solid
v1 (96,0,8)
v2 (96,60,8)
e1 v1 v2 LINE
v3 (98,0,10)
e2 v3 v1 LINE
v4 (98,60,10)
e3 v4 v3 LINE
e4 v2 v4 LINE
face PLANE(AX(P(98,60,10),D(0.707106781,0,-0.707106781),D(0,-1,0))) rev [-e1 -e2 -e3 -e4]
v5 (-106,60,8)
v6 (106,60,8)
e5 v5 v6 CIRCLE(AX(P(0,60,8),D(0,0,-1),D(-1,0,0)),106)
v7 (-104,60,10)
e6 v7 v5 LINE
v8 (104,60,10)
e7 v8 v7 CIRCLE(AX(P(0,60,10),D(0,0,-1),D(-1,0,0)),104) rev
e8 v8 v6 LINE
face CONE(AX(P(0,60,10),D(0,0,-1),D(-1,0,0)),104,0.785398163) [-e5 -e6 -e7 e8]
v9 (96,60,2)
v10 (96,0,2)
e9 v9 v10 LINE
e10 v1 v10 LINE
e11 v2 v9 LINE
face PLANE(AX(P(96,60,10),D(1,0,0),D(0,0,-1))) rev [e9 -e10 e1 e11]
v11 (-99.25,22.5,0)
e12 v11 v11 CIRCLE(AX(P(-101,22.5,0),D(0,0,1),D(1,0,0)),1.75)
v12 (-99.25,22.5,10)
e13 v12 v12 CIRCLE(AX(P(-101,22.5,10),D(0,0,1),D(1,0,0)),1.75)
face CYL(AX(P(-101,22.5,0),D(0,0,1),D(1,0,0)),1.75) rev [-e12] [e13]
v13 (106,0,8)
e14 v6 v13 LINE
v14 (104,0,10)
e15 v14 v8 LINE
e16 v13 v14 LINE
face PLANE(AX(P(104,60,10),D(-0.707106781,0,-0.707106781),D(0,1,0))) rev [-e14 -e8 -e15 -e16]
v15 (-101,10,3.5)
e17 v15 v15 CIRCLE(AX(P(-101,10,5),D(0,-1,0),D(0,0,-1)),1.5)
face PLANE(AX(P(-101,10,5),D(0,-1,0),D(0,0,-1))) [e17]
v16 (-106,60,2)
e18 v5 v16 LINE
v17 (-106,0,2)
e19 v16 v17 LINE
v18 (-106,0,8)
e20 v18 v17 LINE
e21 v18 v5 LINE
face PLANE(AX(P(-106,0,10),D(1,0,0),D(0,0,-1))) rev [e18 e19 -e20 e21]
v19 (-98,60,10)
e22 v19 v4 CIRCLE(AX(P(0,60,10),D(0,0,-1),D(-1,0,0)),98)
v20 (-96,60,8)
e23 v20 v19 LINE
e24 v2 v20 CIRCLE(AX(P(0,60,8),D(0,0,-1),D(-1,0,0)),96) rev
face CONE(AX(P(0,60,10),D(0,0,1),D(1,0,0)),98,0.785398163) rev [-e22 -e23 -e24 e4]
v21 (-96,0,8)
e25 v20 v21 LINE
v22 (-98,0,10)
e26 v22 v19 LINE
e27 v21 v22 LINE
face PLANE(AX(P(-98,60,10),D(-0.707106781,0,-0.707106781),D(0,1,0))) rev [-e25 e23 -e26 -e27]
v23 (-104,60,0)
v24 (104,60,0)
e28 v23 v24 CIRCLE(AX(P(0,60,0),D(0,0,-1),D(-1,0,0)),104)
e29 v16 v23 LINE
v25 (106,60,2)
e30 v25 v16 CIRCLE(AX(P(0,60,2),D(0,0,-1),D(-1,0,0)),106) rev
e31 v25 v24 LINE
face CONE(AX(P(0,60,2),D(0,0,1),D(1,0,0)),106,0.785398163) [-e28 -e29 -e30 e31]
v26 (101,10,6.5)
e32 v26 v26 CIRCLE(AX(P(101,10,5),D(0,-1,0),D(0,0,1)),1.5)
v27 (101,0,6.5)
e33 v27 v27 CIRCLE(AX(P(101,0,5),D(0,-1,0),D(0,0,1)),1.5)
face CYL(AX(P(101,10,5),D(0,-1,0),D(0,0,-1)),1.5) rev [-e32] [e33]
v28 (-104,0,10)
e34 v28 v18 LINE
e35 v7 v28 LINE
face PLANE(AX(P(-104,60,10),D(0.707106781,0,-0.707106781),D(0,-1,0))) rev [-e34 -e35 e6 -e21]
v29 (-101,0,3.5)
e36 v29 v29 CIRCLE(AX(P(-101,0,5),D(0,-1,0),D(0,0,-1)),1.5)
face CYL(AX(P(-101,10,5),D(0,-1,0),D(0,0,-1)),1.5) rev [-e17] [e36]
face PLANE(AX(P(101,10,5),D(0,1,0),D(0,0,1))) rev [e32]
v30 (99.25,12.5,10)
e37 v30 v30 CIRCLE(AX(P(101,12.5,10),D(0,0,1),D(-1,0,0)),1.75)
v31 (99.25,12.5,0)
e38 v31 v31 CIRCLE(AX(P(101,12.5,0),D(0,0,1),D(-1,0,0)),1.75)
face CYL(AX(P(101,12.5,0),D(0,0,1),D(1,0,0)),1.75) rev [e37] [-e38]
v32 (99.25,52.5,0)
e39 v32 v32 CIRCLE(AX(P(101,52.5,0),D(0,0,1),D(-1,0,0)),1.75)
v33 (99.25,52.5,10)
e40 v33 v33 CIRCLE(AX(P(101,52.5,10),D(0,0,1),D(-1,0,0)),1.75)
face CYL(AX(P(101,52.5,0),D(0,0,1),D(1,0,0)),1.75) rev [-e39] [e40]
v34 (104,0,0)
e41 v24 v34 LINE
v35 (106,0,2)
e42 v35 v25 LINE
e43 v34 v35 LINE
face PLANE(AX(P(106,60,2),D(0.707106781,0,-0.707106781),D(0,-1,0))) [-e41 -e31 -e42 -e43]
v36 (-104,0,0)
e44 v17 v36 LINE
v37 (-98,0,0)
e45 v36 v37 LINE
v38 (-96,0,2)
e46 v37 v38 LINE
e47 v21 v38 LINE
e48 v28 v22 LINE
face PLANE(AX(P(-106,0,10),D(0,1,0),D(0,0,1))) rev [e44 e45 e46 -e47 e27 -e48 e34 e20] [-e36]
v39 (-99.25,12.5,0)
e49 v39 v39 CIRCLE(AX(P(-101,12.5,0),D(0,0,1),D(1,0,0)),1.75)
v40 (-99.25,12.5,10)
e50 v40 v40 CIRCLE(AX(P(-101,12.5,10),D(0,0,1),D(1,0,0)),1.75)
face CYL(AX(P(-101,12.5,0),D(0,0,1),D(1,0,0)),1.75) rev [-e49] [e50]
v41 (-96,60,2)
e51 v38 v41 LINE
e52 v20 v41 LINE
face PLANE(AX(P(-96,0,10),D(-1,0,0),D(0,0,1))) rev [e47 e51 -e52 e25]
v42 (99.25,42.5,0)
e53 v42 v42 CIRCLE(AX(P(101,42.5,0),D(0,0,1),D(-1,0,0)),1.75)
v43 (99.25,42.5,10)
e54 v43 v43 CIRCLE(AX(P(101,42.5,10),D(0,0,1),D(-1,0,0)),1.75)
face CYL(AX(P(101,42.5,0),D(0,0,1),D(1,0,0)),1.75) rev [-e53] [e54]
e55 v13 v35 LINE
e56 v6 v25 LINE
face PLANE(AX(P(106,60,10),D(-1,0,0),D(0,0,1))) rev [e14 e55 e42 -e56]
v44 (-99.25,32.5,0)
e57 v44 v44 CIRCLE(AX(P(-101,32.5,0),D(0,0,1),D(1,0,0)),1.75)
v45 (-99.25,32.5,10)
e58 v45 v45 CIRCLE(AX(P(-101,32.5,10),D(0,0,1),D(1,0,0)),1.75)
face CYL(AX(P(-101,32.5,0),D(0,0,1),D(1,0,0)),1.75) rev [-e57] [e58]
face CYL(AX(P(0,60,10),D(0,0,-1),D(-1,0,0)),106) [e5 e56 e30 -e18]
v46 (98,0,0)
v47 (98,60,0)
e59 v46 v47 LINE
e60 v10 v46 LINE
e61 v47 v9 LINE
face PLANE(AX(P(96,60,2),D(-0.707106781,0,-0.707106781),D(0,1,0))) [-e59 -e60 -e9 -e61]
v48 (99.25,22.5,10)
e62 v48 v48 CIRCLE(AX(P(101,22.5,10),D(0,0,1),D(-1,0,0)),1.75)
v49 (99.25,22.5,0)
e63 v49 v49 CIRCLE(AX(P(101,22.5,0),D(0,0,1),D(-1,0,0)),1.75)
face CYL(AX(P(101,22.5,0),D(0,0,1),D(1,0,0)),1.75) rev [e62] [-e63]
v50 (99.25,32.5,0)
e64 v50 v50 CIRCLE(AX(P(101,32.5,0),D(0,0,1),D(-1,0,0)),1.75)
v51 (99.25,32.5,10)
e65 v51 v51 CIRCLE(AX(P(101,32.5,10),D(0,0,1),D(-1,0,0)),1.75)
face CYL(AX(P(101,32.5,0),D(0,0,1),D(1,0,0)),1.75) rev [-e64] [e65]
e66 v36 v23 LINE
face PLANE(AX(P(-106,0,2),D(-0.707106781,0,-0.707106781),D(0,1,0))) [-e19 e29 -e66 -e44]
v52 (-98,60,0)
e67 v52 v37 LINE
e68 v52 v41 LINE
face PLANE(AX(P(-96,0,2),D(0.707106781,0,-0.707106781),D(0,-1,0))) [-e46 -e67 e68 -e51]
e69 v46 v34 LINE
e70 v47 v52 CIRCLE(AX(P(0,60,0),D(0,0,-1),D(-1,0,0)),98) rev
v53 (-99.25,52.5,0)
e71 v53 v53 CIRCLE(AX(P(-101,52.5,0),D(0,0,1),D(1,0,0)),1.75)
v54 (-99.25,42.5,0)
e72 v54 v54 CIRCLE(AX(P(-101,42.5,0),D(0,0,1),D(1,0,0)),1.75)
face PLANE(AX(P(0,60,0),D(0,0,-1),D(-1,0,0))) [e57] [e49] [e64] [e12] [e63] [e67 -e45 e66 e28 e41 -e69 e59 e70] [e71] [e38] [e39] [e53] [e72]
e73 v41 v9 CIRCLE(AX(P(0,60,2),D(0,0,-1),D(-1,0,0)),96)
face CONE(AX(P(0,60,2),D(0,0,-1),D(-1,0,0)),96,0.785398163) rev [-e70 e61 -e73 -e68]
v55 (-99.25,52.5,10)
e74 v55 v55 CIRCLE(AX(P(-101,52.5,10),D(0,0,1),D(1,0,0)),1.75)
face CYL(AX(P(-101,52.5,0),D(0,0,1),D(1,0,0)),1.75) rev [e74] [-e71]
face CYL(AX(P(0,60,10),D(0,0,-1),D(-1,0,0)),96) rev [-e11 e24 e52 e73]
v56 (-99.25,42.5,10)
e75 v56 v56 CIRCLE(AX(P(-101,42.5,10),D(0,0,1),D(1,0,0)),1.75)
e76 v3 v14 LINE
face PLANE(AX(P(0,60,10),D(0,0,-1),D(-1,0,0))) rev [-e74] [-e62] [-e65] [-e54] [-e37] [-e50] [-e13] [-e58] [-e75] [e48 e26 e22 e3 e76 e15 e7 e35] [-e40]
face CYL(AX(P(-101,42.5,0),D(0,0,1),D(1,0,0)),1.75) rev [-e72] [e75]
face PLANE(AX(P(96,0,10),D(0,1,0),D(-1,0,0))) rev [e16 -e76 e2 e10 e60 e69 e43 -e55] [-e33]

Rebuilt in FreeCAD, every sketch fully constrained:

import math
import FreeCAD as App
import Part
import Sketcher

V = App.Vector


def edges_at(feature, points):
    """Names of the edges that pass closest to the given points."""
    edges = feature.Shape.Edges
    near = lambda p: min(range(len(edges)), key=lambda i: edges[i].distToShape(Part.Vertex(*p))[0])
    return sorted({f"Edge{near(p) + 1}" for p in points})

doc = App.newDocument("Part")
body = doc.addObject("PartDesign::Body", "Body")

# Sketch on XY plane
sketch1 = body.newObject("Sketcher::SketchObject", "Sketch")
sketch1.AttachmentSupport = (doc.getObject("XY_Plane"), [""])
sketch1.MapMode = "FlatFace"
sketch1.addGeometry(Part.LineSegment(V(-106, 60, 0), V(-106, 0, 0)), False)
sketch1.addGeometry(Part.LineSegment(V(-106, 0, 0), V(-96, 0, 0)), False)
sketch1.addGeometry(Part.LineSegment(V(-96, 0, 0), V(-96, 60, 0)), False)
sketch1.addGeometry(Part.ArcOfCircle(Part.Circle(V(0, 60, 0), V(0, 0, 1), 96), math.radians(0), math.radians(180)), False)
sketch1.addGeometry(Part.LineSegment(V(96, 60, 0), V(96, 0, 0)), False)
sketch1.addGeometry(Part.LineSegment(V(96, 0, 0), V(106, 0, 0)), False)
sketch1.addGeometry(Part.LineSegment(V(106, 0, 0), V(106, 60, 0)), False)
sketch1.addGeometry(Part.ArcOfCircle(Part.Circle(V(0, 60, 0), V(0, 0, 1), 106), math.radians(0), math.radians(180)), False)
sketch1.addConstraint(Sketcher.Constraint("Coincident", 0, 2, 1, 1))
sketch1.addConstraint(Sketcher.Constraint("Coincident", 1, 2, 2, 1))
sketch1.addConstraint(Sketcher.Constraint("Tangent", 2, 2, 3, 2))
sketch1.addConstraint(Sketcher.Constraint("Tangent", 3, 1, 4, 1))
sketch1.addConstraint(Sketcher.Constraint("Coincident", 4, 2, 5, 1))
sketch1.addConstraint(Sketcher.Constraint("Coincident", 5, 2, 6, 1))
sketch1.addConstraint(Sketcher.Constraint("Tangent", 6, 2, 7, 1))
sketch1.addConstraint(Sketcher.Constraint("Tangent", 7, 2, 0, 1))
sketch1.addConstraint(Sketcher.Constraint("Vertical", 0))
sketch1.addConstraint(Sketcher.Constraint("Horizontal", 1))
sketch1.addConstraint(Sketcher.Constraint("Vertical", 2))
sketch1.addConstraint(Sketcher.Constraint("Vertical", 4))
sketch1.addConstraint(Sketcher.Constraint("Horizontal", 5))
sketch1.addConstraint(Sketcher.Constraint("Vertical", 6))
sketch1.addConstraint(Sketcher.Constraint("Coincident", 7, 3, 3, 3))
sketch1.addConstraint(Sketcher.Constraint("Symmetric", 1, 2, 4, 2, -1, 1))
sketch1.addConstraint(Sketcher.Constraint("PointOnObject", 0, 2, -1))
sketch1.addConstraint(Sketcher.Constraint("Radius", 3, 96.0))
sketch1.addConstraint(Sketcher.Constraint("Radius", 7, 106.0))
sketch1.addConstraint(Sketcher.Constraint("DistanceY", 0, 2, 0, 1, 60.0))
pad1 = body.newObject("PartDesign::Pad", "Pad")
pad1.Profile = sketch1
pad1.Length = 10
doc.recompute()

chamfer = body.newObject("PartDesign::Chamfer", "Chamfer")
chamfer.Base = (pad1, edges_at(pad1, [
    (96, 30, 0),
    (0, 156, 0),
    (-96, 30, 0),
    (0, 156, 10),
    (96, 30, 10),
    (106, 30, 10),
    (0, 166, 10),
    (-106, 30, 10),
    (-106, 30, 0),
    (-96, 30, 10),
    (0, 166, 0),
    (106, 30, 0),
]))
chamfer.Size = 2

# Sketch on XY plane
sketch2 = body.newObject("Sketcher::SketchObject", "Sketch001")
sketch2.AttachmentSupport = (doc.getObject("XY_Plane"), [""])
sketch2.MapMode = "FlatFace"
sketch2.AttachmentOffset = App.Placement(V(0, 0, 10), App.Rotation())
sketch2.addGeometry(Part.Circle(V(-101, 12.5, 0), V(0, 0, 1), 1.8), False)
sketch2.addGeometry(Part.Circle(V(101, 12.5, 0), V(0, 0, 1), 1.8), False)
sketch2.addConstraint(Sketcher.Constraint("Equal", 0, 1))
sketch2.addConstraint(Sketcher.Constraint("Symmetric", 0, 3, 1, 3, -2))
sketch2.addConstraint(Sketcher.Constraint("Diameter", 0, 3.5))
sketch2.addConstraint(Sketcher.Constraint("DistanceX", 0, 3, -1, 1, 101.0))
sketch2.addConstraint(Sketcher.Constraint("DistanceY", -1, 1, 0, 3, 12.5))
pocket1 = body.newObject("PartDesign::Pocket", "Pocket")
pocket1.Profile = sketch2
pocket1.Type = "ThroughAll"
doc.recompute()

linearpattern = body.newObject("PartDesign::LinearPattern", "LinearPattern")
linearpattern.Originals = [pocket1]
linearpattern.Direction = (doc.getObject("Y_Axis"), [""])
linearpattern.Mode = "offset"
linearpattern.Offset = 10
linearpattern.Occurrences = 5
body.Tip = linearpattern

# Sketch on XZ plane
sketch3 = body.newObject("Sketcher::SketchObject", "Sketch002")
sketch3.AttachmentSupport = (doc.getObject("XZ_Plane"), [""])
sketch3.MapMode = "FlatFace"
sketch3.addGeometry(Part.Circle(V(-101, 5, 0), V(0, 0, 1), 1.5), False)
sketch3.addGeometry(Part.Circle(V(101, 5, 0), V(0, 0, 1), 1.5), False)
sketch3.addConstraint(Sketcher.Constraint("Equal", 0, 1))
sketch3.addConstraint(Sketcher.Constraint("Symmetric", 0, 3, 1, 3, -2))
sketch3.addConstraint(Sketcher.Constraint("Diameter", 0, 3.0))
sketch3.addConstraint(Sketcher.Constraint("DistanceX", 0, 3, -1, 1, 101.0))
sketch3.addConstraint(Sketcher.Constraint("DistanceY", -1, 1, 0, 3, 5.0))
pocket2 = body.newObject("PartDesign::Pocket", "Pocket001")
pocket2.Profile = sketch3
pocket2.Length = 10

doc.recompute()
